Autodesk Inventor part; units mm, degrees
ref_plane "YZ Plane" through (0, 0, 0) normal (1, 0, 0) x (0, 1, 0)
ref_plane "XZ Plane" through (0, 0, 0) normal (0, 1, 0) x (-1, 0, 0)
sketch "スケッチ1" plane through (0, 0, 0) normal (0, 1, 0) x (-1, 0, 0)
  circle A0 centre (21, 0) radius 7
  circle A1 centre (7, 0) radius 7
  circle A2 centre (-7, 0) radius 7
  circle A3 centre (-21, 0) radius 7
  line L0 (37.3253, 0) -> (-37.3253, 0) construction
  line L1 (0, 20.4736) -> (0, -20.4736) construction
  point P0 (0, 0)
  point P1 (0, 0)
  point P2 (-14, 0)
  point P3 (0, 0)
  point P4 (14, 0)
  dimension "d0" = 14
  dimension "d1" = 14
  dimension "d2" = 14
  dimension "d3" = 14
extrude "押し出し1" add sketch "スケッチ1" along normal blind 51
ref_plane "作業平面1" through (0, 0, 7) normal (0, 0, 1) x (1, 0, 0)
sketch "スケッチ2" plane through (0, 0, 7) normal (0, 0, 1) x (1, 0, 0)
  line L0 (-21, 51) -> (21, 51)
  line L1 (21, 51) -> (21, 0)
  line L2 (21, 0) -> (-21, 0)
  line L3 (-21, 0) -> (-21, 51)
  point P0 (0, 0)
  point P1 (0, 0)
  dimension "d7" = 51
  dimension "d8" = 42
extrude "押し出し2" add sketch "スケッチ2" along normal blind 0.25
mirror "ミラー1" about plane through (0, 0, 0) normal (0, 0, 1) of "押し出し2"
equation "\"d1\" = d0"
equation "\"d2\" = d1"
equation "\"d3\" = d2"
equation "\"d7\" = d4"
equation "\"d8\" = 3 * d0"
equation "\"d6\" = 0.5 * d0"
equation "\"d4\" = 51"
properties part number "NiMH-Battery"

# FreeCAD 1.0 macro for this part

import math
import FreeCAD as App
import Part
import Sketcher
Q = App.Units.Quantity

doc = App.newDocument("Part")
body = doc.addObject("PartDesign::Body", "Body")
body.AllowCompound = True

# Sketch on XZ plane
sketch1 = body.newObject("Sketcher::SketchObject", "Sketch")
sketch1.AttachmentSupport = (doc.getObject("XZ_Plane"), [""])
sketch1.MapMode = "FlatFace"
sketch1.addGeometry([
    Part.Circle(App.Vector(-21, 0, 0), App.Vector(0, 0, 1), 7),  # 0
    Part.Circle(App.Vector(21, 0, 0), App.Vector(0, 0, 1), 7),  # 1
    Part.ArcOfCircle(Part.Circle(App.Vector(7, 0, 0), App.Vector(0, 0, 1), 7), math.radians(180), math.radians(360)),  # 2
    Part.ArcOfCircle(Part.Circle(App.Vector(7, 0, 0), App.Vector(0, 0, 1), 7), math.radians(0), math.radians(180)),  # 3
    Part.ArcOfCircle(Part.Circle(App.Vector(-7, 0, 0), App.Vector(0, 0, 1), 7), math.radians(180), math.radians(360)),  # 4
    Part.ArcOfCircle(Part.Circle(App.Vector(-7, 0, 0), App.Vector(0, 0, 1), 7), math.radians(0), math.radians(180)),  # 5
], False)
sketch1.addConstraint([
    Sketcher.Constraint("Tangent", 2, 1, 3, 2),
    Sketcher.Constraint("Coincident", 3, 1, 2, 2),
    Sketcher.Constraint("Tangent", 4, 1, 5, 2),
    Sketcher.Constraint("Coincident", 5, 1, 4, 2),
    Sketcher.Constraint("Coincident", 2, 1, -1, 1),
    Sketcher.Constraint("Coincident", 5, 1, -1, 1),
    Sketcher.Constraint("Equal", 0, 1),
    Sketcher.Constraint("Equal", 1, 2),
    Sketcher.Constraint("Equal", 3, 4),
    Sketcher.Constraint("Symmetric", 0, 3, 1, 3, -1, 1),
    Sketcher.Constraint("PointOnObject", 0, 3, -1),
    Sketcher.Constraint("PointOnObject", 2, 3, -1),
    Sketcher.Constraint("PointOnObject", 4, 3, -1),
    Sketcher.Constraint("PointOnObject", 3, 1, -1),
    Sketcher.Constraint("PointOnObject", 4, 1, -1),
    Sketcher.Constraint("Diameter", 0, Q("14 mm")),
    Sketcher.Constraint("DistanceX", 2, 3, 1, 3, Q("14 mm")),
])
pad1 = body.newObject("PartDesign::Pad", "Pad")
pad1.Profile = sketch1
pad1.Length = 51
pad1.Reversed = True

# Sketch on XY plane
sketch2 = body.newObject("Sketcher::SketchObject", "Sketch001")
sketch2.AttachmentSupport = (doc.getObject("XY_Plane"), [""])
sketch2.MapMode = "FlatFace"
sketch2.AttachmentOffset = App.Placement(App.Vector(0, 0, 7), App.Rotation())
sketch2.addGeometry([
    Part.LineSegment(App.Vector(21, 51, 0), App.Vector(-21, 51, 0)),
    Part.LineSegment(App.Vector(-21, 51, 0), App.Vector(-21, 0, 0)),
    Part.LineSegment(App.Vector(-21, 0, 0), App.Vector(21, 0, 0)),
    Part.LineSegment(App.Vector(21, 0, 0), App.Vector(21, 51, 0)),
], False)
sketch2.addConstraint([
    Sketcher.Constraint("Coincident", 0, 2, 1, 1),
    Sketcher.Constraint("Coincident", 1, 2, 2, 1),
    Sketcher.Constraint("Coincident", 2, 2, 3, 1),
    Sketcher.Constraint("Coincident", 3, 2, 0, 1),
    Sketcher.Constraint("Horizontal", 0),
    Sketcher.Constraint("Vertical", 1),
    Sketcher.Constraint("Horizontal", 2),
    Sketcher.Constraint("Vertical", 3),
    Sketcher.Constraint("Symmetric", 1, 2, 2, 2, -1, 1),
    Sketcher.Constraint("DistanceX", 0, 2, 0, 1, Q("42 mm")),
    Sketcher.Constraint("DistanceY", 1, 2, 1, 1, Q("51 mm")),
])
pad2 = body.newObject("PartDesign::Pad", "Pad001")
pad2.Profile = sketch2
pad2.Length = 0.25
doc.recompute()

mirrored = body.newObject("PartDesign::Mirrored", "Mirrored")
mirrored.Originals = [pad2]
mirrored.MirrorPlane = (doc.getObject("XY_Plane"), [""])
body.Tip = mirrored

doc.recompute()
